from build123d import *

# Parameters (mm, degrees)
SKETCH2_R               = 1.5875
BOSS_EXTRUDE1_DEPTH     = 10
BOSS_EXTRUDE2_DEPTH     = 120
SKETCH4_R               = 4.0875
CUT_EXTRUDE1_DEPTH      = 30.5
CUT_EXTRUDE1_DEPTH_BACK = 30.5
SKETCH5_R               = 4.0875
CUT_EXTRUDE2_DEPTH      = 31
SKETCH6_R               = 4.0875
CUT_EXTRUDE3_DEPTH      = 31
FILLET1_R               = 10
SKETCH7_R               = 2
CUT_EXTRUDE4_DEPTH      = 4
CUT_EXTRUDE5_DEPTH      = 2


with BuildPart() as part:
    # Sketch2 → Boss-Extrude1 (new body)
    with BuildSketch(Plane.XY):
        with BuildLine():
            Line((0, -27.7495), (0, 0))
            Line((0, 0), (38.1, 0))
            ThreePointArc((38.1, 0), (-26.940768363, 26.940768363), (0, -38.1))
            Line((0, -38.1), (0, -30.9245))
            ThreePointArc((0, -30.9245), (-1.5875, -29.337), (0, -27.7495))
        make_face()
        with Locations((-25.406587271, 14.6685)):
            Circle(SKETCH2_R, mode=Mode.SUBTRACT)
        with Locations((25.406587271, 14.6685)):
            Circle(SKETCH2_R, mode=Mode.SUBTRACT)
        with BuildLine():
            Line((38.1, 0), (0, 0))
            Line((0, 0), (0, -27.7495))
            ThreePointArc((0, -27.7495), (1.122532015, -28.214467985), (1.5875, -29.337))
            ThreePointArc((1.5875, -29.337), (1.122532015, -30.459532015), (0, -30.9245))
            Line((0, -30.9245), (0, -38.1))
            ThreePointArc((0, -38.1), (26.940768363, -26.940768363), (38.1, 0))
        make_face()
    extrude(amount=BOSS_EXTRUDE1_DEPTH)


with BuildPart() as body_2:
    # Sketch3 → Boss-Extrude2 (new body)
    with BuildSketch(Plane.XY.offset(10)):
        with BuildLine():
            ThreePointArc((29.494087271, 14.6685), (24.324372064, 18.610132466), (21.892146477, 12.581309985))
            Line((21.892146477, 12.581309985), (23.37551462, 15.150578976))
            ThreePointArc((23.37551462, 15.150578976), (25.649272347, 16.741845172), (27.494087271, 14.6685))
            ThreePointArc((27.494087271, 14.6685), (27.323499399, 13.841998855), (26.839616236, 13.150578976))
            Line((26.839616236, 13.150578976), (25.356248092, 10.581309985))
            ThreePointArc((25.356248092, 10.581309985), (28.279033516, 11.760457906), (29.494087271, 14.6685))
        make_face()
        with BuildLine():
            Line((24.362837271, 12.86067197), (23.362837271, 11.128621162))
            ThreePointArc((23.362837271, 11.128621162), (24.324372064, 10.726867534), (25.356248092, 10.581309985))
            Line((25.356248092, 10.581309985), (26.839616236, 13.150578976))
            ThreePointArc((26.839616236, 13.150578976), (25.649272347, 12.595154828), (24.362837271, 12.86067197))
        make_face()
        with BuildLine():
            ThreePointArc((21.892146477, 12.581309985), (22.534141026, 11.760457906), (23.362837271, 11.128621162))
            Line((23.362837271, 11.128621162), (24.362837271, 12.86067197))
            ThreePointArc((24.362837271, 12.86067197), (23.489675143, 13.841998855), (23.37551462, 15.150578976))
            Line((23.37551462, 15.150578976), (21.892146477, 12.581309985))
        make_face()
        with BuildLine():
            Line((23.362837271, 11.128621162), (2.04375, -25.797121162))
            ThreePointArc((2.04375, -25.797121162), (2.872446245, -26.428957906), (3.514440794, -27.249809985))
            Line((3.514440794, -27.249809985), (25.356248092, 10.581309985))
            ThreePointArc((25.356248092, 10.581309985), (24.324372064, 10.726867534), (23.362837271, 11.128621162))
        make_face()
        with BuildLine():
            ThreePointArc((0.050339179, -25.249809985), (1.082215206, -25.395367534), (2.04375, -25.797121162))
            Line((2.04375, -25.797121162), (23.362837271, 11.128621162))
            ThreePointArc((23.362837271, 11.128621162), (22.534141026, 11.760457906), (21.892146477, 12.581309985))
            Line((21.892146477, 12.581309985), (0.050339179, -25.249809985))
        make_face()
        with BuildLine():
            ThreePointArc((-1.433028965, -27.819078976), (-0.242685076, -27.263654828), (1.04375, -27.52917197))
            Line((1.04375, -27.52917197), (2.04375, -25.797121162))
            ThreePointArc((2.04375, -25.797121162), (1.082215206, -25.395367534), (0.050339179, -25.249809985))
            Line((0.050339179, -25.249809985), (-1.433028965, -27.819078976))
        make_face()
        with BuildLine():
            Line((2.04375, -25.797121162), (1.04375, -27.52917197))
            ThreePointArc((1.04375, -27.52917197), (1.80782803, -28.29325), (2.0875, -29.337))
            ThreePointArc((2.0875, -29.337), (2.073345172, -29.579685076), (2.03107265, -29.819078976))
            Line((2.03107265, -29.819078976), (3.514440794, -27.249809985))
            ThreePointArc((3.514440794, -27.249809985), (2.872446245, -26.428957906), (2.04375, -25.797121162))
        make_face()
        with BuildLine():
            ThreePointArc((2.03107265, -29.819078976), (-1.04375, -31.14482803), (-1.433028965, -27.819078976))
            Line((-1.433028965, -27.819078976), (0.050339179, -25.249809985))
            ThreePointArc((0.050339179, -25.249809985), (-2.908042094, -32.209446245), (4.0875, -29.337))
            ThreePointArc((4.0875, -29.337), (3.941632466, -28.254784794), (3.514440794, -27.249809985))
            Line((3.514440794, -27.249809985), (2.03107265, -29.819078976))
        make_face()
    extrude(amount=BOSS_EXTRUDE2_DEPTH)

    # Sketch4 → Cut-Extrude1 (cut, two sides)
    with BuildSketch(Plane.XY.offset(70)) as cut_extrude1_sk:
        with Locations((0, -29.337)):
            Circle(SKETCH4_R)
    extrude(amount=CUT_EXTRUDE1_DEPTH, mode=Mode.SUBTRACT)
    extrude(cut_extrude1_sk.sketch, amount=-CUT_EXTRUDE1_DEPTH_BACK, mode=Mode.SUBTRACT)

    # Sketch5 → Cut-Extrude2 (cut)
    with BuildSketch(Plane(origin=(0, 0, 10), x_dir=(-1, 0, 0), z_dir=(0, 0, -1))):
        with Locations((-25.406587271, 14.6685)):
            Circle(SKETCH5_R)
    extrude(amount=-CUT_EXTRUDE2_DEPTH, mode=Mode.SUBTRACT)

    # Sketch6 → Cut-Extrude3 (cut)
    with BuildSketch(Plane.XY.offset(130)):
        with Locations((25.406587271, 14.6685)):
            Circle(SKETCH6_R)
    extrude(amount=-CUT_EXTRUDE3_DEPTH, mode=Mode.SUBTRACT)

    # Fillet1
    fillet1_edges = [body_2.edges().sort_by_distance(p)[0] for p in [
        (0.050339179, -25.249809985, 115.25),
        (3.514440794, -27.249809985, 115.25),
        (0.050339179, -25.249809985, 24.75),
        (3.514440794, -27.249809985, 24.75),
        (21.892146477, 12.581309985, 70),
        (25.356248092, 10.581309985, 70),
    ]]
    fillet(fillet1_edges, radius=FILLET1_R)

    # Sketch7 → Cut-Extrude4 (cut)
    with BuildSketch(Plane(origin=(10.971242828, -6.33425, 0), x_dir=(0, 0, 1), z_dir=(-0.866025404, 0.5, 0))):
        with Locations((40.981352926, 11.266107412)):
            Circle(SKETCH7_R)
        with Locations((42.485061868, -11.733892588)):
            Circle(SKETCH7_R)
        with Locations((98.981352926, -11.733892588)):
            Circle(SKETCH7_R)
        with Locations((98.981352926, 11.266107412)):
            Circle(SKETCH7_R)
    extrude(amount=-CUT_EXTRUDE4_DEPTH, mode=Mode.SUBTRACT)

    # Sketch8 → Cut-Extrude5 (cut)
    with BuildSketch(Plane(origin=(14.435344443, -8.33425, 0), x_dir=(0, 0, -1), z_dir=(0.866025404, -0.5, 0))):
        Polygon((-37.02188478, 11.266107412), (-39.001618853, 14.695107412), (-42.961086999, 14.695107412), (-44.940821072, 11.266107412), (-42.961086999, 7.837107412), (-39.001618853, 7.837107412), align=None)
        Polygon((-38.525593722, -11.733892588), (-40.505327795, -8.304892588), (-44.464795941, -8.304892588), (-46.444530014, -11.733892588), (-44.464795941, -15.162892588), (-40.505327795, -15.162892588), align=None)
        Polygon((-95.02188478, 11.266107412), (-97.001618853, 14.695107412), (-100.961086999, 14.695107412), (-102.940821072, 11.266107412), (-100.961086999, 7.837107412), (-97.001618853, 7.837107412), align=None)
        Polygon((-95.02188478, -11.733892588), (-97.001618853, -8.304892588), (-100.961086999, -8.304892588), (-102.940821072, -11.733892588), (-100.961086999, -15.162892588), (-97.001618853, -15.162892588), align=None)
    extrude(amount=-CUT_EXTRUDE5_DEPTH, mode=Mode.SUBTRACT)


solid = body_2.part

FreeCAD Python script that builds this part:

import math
import FreeCAD as App
import Part
import Sketcher
from FreeCAD import Vector
Q = App.Units.Quantity


def edges_at(feature, points):
    """Names of the edges that pass closest to the given points."""
    edges = feature.Shape.Edges
    near = lambda p: min(range(len(edges)), key=lambda i: edges[i].distToShape(Part.Vertex(*p))[0])
    return sorted({f"Edge{near(p) + 1}" for p in points})

doc = App.newDocument("Part")
body = doc.addObject("PartDesign::Body", "Body")

sketch1 = body.newObject("Sketcher::SketchObject", "Sketch")
sketch1.AttachmentSupport = (doc.getObject("XY_Plane"), [""])
sketch1.MapMode = "FlatFace"
sketch1.addGeometry([
    Part.ArcOfCircle(Part.Circle(Vector(0, 0, 0), Vector(0, 0, 1), 38.1), math.radians(0), math.radians(270)),
    Part.ArcOfCircle(Part.Circle(Vector(0, 0, 0), Vector(0, 0, 1), 38.1), math.radians(-90), math.radians(0)),
    Part.ArcOfCircle(Part.Circle(Vector(0, -29.337, 0), Vector(0, 0, 1), 1.5875), math.radians(90), math.radians(270)),
    Part.ArcOfCircle(Part.Circle(Vector(0, -29.337, 0), Vector(0, 0, 1), 1.5875), math.radians(0), math.radians(90)),
    Part.ArcOfCircle(Part.Circle(Vector(0, -29.337, 0), Vector(0, 0, 1), 1.5875), math.radians(-90), math.radians(0)),
    Part.Circle(Vector(-25.406587, 14.6685, 0), Vector(0, 0, 1), 1.5875),
    Part.Circle(Vector(25.406587, 14.6685, 0), Vector(0, 0, 1), 1.5875),
], False)
sketch1.addConstraint([
    Sketcher.Constraint("Tangent", 0, 1, 1, 2),
    Sketcher.Constraint("Coincident", 1, 1, 0, 2),
    Sketcher.Constraint("Tangent", 2, 1, 3, 2),
    Sketcher.Constraint("Tangent", 3, 1, 4, 2),
    Sketcher.Constraint("Tangent", 4, 1, 2, 2),
    Sketcher.Constraint("Coincident", 0, 3, -1, 1),
    Sketcher.Constraint("Equal", 4, 5),
    Sketcher.Constraint("Equal", 5, 6),
    Sketcher.Constraint("Symmetric", 5, 3, 6, 3, -2),
    Sketcher.Constraint("PointOnObject", 2, 3, -2),
    Sketcher.Constraint("PointOnObject", 0, 1, -1),
    Sketcher.Constraint("PointOnObject", 1, 1, -2),
    Sketcher.Constraint("PointOnObject", 2, 1, -2),
    Sketcher.Constraint("PointOnObject", 4, 1, -2),
    Sketcher.Constraint("Horizontal", 4, 3, 3, 1),
    Sketcher.Constraint("Radius", 0, Q("38.1 mm")),
    Sketcher.Constraint("Diameter", 5, Q("3.175 mm")),
    Sketcher.Constraint("DistanceY", 2, 3, -1, 1, Q("29.337 mm")),
    Sketcher.Constraint("DistanceY", -1, 1, 5, 3, Q("14.6685 mm")),
    Sketcher.Constraint("DistanceX", 5, 3, -1, 1, Q("25.406587 mm")),
])
pad1 = body.newObject("PartDesign::Pad", "Pad")
pad1.Profile = sketch1
pad1.Length = 10
body2 = doc.addObject("PartDesign::Body", "Body001")

sketch2 = body2.newObject("Sketcher::SketchObject", "Sketch001")
sketch2.AttachmentSupport = (doc.getObject("XY_Plane001"), [""])
sketch2.MapMode = "FlatFace"
sketch2.AttachmentOffset = App.Placement(Vector(0, 0, 10), App.Rotation())
sketch2.addGeometry([
    Part.ArcOfCircle(Part.Circle(Vector(25.406587, 14.6685, 0), Vector(0, 0, 1), 4.0875), math.radians(0), math.radians(210.705638)),
    Part.LineSegment(Vector(21.892146, 12.58131, 0), Vector(0.050339, -25.24981, 0)),
    Part.ArcOfCircle(Part.Circle(Vector(0, -29.337, 0), Vector(0, 0, 1), 4.0875), math.radians(89.294362), math.radians(360)),
    Part.ArcOfCircle(Part.Circle(Vector(0, -29.337, 0), Vector(0, 0, 1), 4.0875), math.radians(0), math.radians(30.705638)),
    Part.LineSegment(Vector(3.514441, -27.24981, 0), Vector(25.356248, 10.58131, 0)),
    Part.ArcOfCircle(Part.Circle(Vector(25.406587, 14.6685, 0), Vector(0, 0, 1), 4.0875), math.radians(-90.705638), math.radians(0)),
    Part.ArcOfCircle(Part.Circle(Vector(0, -29.337, 0), Vector(0, 0, 1), 2.0875), math.radians(60), math.radians(133.352186)),
    Part.ArcOfCircle(Part.Circle(Vector(0, -29.337, 0), Vector(0, 0, 1), 2.0875), math.radians(0), math.radians(60)),
    Part.ArcOfCircle(Part.Circle(Vector(0, -29.337, 0), Vector(0, 0, 1), 2.0875), math.radians(-13.352186), math.radians(0)),
    Part.ArcOfCircle(Part.Circle(Vector(0, -29.337, 0), Vector(0, 0, 1), 2.0875), math.radians(133.352186), math.radians(346.647814)),
    Part.ArcOfCircle(Part.Circle(Vector(25.406587, 14.6685, 0), Vector(0, 0, 1), 2.0875), math.radians(0), math.radians(166.647814)),
    Part.ArcOfCircle(Part.Circle(Vector(25.406587, 14.6685, 0), Vector(0, 0, 1), 2.0875), math.radians(-46.647814), math.radians(0)),
    Part.ArcOfCircle(Part.Circle(Vector(25.406587, 14.6685, 0), Vector(0, 0, 1), 2.0875), math.radians(-120), math.radians(-46.647814)),
    Part.ArcOfCircle(Part.Circle(Vector(25.406587, 14.6685, 0), Vector(0, 0, 1), 2.0875), math.radians(166.647814), math.radians(240)),
], False)
sketch2.addConstraint([
    Sketcher.Constraint("Coincident", 0, 2, 1, 1),
    Sketcher.Constraint("Coincident", 1, 2, 2, 1),
    Sketcher.Constraint("Tangent", 2, 2, 3, 1),
    Sketcher.Constraint("Coincident", 3, 2, 4, 1),
    Sketcher.Constraint("Coincident", 4, 2, 5, 1),
    Sketcher.Constraint("Tangent", 5, 2, 0, 1),
    Sketcher.Constraint("Tangent", 6, 1, 7, 2),
    Sketcher.Constraint("Tangent", 7, 1, 8, 2),
    Sketcher.Constraint("Tangent", 8, 1, 9, 2),
    Sketcher.Constraint("Tangent", 9, 1, 6, 2),
    Sketcher.Constraint("Tangent", 10, 1, 11, 2),
    Sketcher.Constraint("Tangent", 11, 1, 12, 2),
    Sketcher.Constraint("Tangent", 12, 1, 13, 2),
    Sketcher.Constraint("Tangent", 13, 1, 10, 2),
    Sketcher.Constraint("Coincident", 6, 3, 2, 3),
    Sketcher.Constraint("Coincident", 10, 3, 0, 3),
    Sketcher.Constraint("Equal", 0, 2),
    Sketcher.Constraint("Equal", 2, 3),
    Sketcher.Constraint("Equal", 3, 5),
    Sketcher.Constraint("Equal", 6, 7),
    Sketcher.Constraint("Equal", 9, 10),
    Sketcher.Constraint("Equal", 10, 11),
    Sketcher.Constraint("PointOnObject", 2, 3, -2),
    Sketcher.Constraint("Parallel", 1, 4),
    Sketcher.Constraint("Horizontal", 9, 3, 2, 2),
    Sketcher.Constraint("Horizontal", 13, 3, 5, 2),
    Sketcher.Constraint("Horizontal", 2, 2, 7, 1),
    Sketcher.Constraint("Horizontal", 5, 2, 10, 1),
    Sketcher.Constraint("Equal", 1, 4),
    Sketcher.Constraint("Angle", 1, Q("-120 deg")),
    Sketcher.Constraint("DistanceY", 3, 2, 1, 2, Q("2 mm")),
    Sketcher.Constraint("DistanceX", 7, 1, 2, 2, Q("2 mm")),
    Sketcher.Constraint("Radius", 0, Q("4.0875 mm")),
    Sketcher.Constraint("DistanceY", 2, 3, -1, 1, Q("29.337 mm")),
    Sketcher.Constraint("DistanceY", -1, 1, 0, 3, Q("14.6685 mm")),
    Sketcher.Constraint("DistanceX", 1, 2, 3, 2, Q("3.464102 mm")),
    Sketcher.Constraint("DistanceX", -1, 1, 6, 1, Q("1.04375 mm")),
    Sketcher.Constraint("DistanceY", 8, 1, -1, 1, Q("29.819079 mm")),
    Sketcher.Constraint("DistanceX", 9, 1, -1, 1, Q("1.433029 mm")),
    Sketcher.Constraint("DistanceY", -1, 1, 11, 1, Q("13.150579 mm")),
    Sketcher.Constraint("DistanceY", -1, 1, 12, 1, Q("12.860672 mm")),
    Sketcher.Constraint("DistanceY", -1, 1, 13, 1, Q("15.150579 mm")),
])
pad2 = body2.newObject("PartDesign::Pad", "Pad001")
pad2.Profile = sketch2
pad2.Length = 120

sketch3 = body2.newObject("Sketcher::SketchObject", "Sketch002")
sketch3.AttachmentSupport = (doc.getObject("XY_Plane001"), [""])
sketch3.MapMode = "FlatFace"
sketch3.AttachmentOffset = App.Placement(Vector(0, 0, 70), App.Rotation())
sketch3.addGeometry(Part.Circle(Vector(0, -29.337, 0), Vector(0, 0, 1), 4.0875), False)
sketch3.addConstraint([
    Sketcher.Constraint("PointOnObject", 0, 3, -2),
    Sketcher.Constraint("Diameter", 0, Q("8.175 mm")),
    Sketcher.Constraint("DistanceY", 0, 3, -1, 1, Q("29.337 mm")),
])
pocket1 = body2.newObject("PartDesign::Pocket", "Pocket")
pocket1.Profile = sketch3
pocket1.Type = "TwoLengths"
pocket1.Length = 30.5
pocket1.Length2 = 30.5
pocket1.Reversed = True

sketch4 = body2.newObject("Sketcher::SketchObject", "Sketch003")
sketch4.AttachmentSupport = (doc.getObject("XY_Plane001"), [""])
sketch4.MapMode = "FlatFace"
sketch4.AttachmentOffset = App.Placement(Vector(0, 0, 10), App.Rotation())
sketch4.addGeometry(Part.Circle(Vector(25.406587, 14.6685, 0), Vector(0, 0, 1), 4.0875), False)
sketch4.addConstraint([
    Sketcher.Constraint("Diameter", 0, Q("8.175 mm")),
    Sketcher.Constraint("DistanceY", -1, 1, 0, 3, Q("14.6685 mm")),
    Sketcher.Constraint("DistanceX", -1, 1, 0, 3, Q("25.406587 mm")),
])
pocket2 = body2.newObject("PartDesign::Pocket", "Pocket001")
pocket2.Profile = sketch4
pocket2.Length = 31
pocket2.Reversed = True

sketch5 = body2.newObject("Sketcher::SketchObject", "Sketch004")
sketch5.AttachmentSupport = (doc.getObject("XY_Plane001"), [""])
sketch5.MapMode = "FlatFace"
sketch5.AttachmentOffset = App.Placement(Vector(0, 0, 130), App.Rotation())
sketch5.addGeometry(Part.Circle(Vector(25.406587, 14.6685, 0), Vector(0, 0, 1), 4.0875), False)
sketch5.addConstraint([
    Sketcher.Constraint("Diameter", 0, Q("8.175 mm")),
    Sketcher.Constraint("DistanceY", -1, 1, 0, 3, Q("14.6685 mm")),
    Sketcher.Constraint("DistanceX", -1, 1, 0, 3, Q("25.406587 mm")),
])
pocket3 = body2.newObject("PartDesign::Pocket", "Pocket002")
pocket3.Profile = sketch5
pocket3.Length = 31
doc.recompute()

fillet = body2.newObject("PartDesign::Fillet", "Fillet")
fillet.Base = (pocket3, edges_at(pocket3, [
    (0.05, -25.25, 115.25),
    (3.514, -27.25, 115.25),
    (0.05, -25.25, 24.75),
    (3.514, -27.25, 24.75),
    (21.892, 12.581, 70),
    (25.356, 10.581, 70),
]))
fillet.Radius = 10

sketch6 = body2.newObject("Sketcher::SketchObject", "Sketch005")
sketch6.Placement = App.Placement(Vector(10.971243, -6.33425, 0), App.Rotation(Vector(0, 0, 1), Vector(0.5, 0.866025404, 0), Vector(-0.866025404, 0.5, 0), "ZXY"))
sketch6.addGeometry([
    Part.Circle(Vector(40.981353, 11.266107, 0), Vector(0, 0, 1), 2),
    Part.Circle(Vector(42.485062, -11.733893, 0), Vector(0, 0, 1), 2),
    Part.Circle(Vector(98.981353, -11.733893, 0), Vector(0, 0, 1), 2),
    Part.Circle(Vector(98.981353, 11.266107, 0), Vector(0, 0, 1), 2),
], False)
sketch6.addConstraint([
    Sketcher.Constraint("Equal", 0, 1),
    Sketcher.Constraint("Equal", 1, 2),
    Sketcher.Constraint("Equal", 2, 3),
    Sketcher.Constraint("Horizontal", 1, 3, 2, 3),
    Sketcher.Constraint("Horizontal", 0, 3, 3, 3),
    Sketcher.Constraint("Vertical", 2, 3, 3, 3),
    Sketcher.Constraint("Diameter", 0, Q("4 mm")),
    Sketcher.Constraint("DistanceY", 1, 3, 0, 3, Q("23 mm")),
    Sketcher.Constraint("DistanceX", 0, 3, 2, 3, Q("58 mm")),
    Sketcher.Constraint("DistanceX", -1, 1, 1, 3, Q("42.485062 mm")),
    Sketcher.Constraint("DistanceX", 0, 3, 1, 3, Q("1.503709 mm")),
    Sketcher.Constraint("DistanceY", -1, 1, 0, 3, Q("11.266107 mm")),
])
pocket4 = body2.newObject("PartDesign::Pocket", "Pocket003")
pocket4.Profile = sketch6
pocket4.Length = 4

sketch7 = body2.newObject("Sketcher::SketchObject", "Sketch006")
sketch7.Placement = App.Placement(Vector(14.435344, -8.33425, 0), App.Rotation(Vector(0, 0, -1), Vector(0.5, 0.866025404, 0), Vector(0.866025404, -0.5, 0), "ZXY"))
sketch7.addGeometry([
    Part.LineSegment(Vector(-37.021885, 11.266107, 0), Vector(-39.001619, 14.695107, 0)),
    Part.LineSegment(Vector(-39.001619, 14.695107, 0), Vector(-42.961087, 14.695107, 0)),
    Part.LineSegment(Vector(-42.961087, 14.695107, 0), Vector(-44.940821, 11.266107, 0)),
    Part.LineSegment(Vector(-44.940821, 11.266107, 0), Vector(-42.961087, 7.837107, 0)),
    Part.LineSegment(Vector(-42.961087, 7.837107, 0), Vector(-39.001619, 7.837107, 0)),
    Part.LineSegment(Vector(-39.001619, 7.837107, 0), Vector(-37.021885, 11.266107, 0)),
    Part.LineSegment(Vector(-38.525594, -11.733893, 0), Vector(-40.505328, -8.304893, 0)),
    Part.LineSegment(Vector(-40.505328, -8.304893, 0), Vector(-44.464796, -8.304893, 0)),
    Part.LineSegment(Vector(-44.464796, -8.304893, 0), Vector(-46.44453, -11.733893, 0)),
    Part.LineSegment(Vector(-46.44453, -11.733893, 0), Vector(-44.464796, -15.162893, 0)),
    Part.LineSegment(Vector(-44.464796, -15.162893, 0), Vector(-40.505328, -15.162893, 0)),
    Part.LineSegment(Vector(-40.505328, -15.162893, 0), Vector(-38.525594, -11.733893, 0)),
    Part.LineSegment(Vector(-95.021885, 11.266107, 0), Vector(-97.001619, 14.695107, 0)),
    Part.LineSegment(Vector(-97.001619, 14.695107, 0), Vector(-100.961087, 14.695107, 0)),
    Part.LineSegment(Vector(-100.961087, 14.695107, 0), Vector(-102.940821, 11.266107, 0)),
    Part.LineSegment(Vector(-102.940821, 11.266107, 0), Vector(-100.961087, 7.837107, 0)),
    Part.LineSegment(Vector(-100.961087, 7.837107, 0), Vector(-97.001619, 7.837107, 0)),
    Part.LineSegment(Vector(-97.001619, 7.837107, 0), Vector(-95.021885, 11.266107, 0)),
    Part.LineSegment(Vector(-95.021885, -11.733893, 0), Vector(-97.001619, -8.304893, 0)),
    Part.LineSegment(Vector(-97.001619, -8.304893, 0), Vector(-100.961087, -8.304893, 0)),
    Part.LineSegment(Vector(-100.961087, -8.304893, 0), Vector(-102.940821, -11.733893, 0)),
    Part.LineSegment(Vector(-102.940821, -11.733893, 0), Vector(-100.961087, -15.162893, 0)),
    Part.LineSegment(Vector(-100.961087, -15.162893, 0), Vector(-97.001619, -15.162893, 0)),
    Part.LineSegment(Vector(-97.001619, -15.162893, 0), Vector(-95.021885, -11.733893, 0)),
], False)
sketch7.addConstraint([
    Sketcher.Constraint("Coincident", 0, 2, 1, 1),
    Sketcher.Constraint("Coincident", 1, 2, 2, 1),
    Sketcher.Constraint("Coincident", 2, 2, 3, 1),
    Sketcher.Constraint("Coincident", 3, 2, 4, 1),
    Sketcher.Constraint("Coincident", 4, 2, 5, 1),
    Sketcher.Constraint("Coincident", 5, 2, 0, 1),
    Sketcher.Constraint("Coincident", 6, 2, 7, 1),
    Sketcher.Constraint("Coincident", 7, 2, 8, 1),
    Sketcher.Constraint("Coincident", 8, 2, 9, 1),
    Sketcher.Constraint("Coincident", 9, 2, 10, 1),
    Sketcher.Constraint("Coincident", 10, 2, 11, 1),
    Sketcher.Constraint("Coincident", 11, 2, 6, 1),
    Sketcher.Constraint("Coincident", 12, 2, 13, 1),
    Sketcher.Constraint("Coincident", 13, 2, 14, 1),
    Sketcher.Constraint("Coincident", 14, 2, 15, 1),
    Sketcher.Constraint("Coincident", 15, 2, 16, 1),
    Sketcher.Constraint("Coincident", 16, 2, 17, 1),
    Sketcher.Constraint("Coincident", 17, 2, 12, 1),
    Sketcher.Constraint("Coincident", 18, 2, 19, 1),
    Sketcher.Constraint("Coincident", 19, 2, 20, 1),
    Sketcher.Constraint("Coincident", 20, 2, 21, 1),
    Sketcher.Constraint("Coincident", 21, 2, 22, 1),
    Sketcher.Constraint("Coincident", 22, 2, 23, 1),
    Sketcher.Constraint("Coincident", 23, 2, 18, 1),
    Sketcher.Constraint("Horizontal", 1),
    Sketcher.Constraint("Horizontal", 4),
    Sketcher.Constraint("Horizontal", 7),
    Sketcher.Constraint("Horizontal", 10),
    Sketcher.Constraint("Horizontal", 13),
    Sketcher.Constraint("Horizontal", 16),
    Sketcher.Constraint("Horizontal", 19),
    Sketcher.Constraint("Horizontal", 22),
    Sketcher.Constraint("Parallel", 0, 3),
    Sketcher.Constraint("Parallel", 2, 5),
    Sketcher.Constraint("Parallel", 3, 6),
    Sketcher.Constraint("Parallel", 5, 8),
    Sketcher.Constraint("Parallel", 6, 9),
    Sketcher.Constraint("Parallel", 8, 11),
    Sketcher.Constraint("Parallel", 9, 12),
    Sketcher.Constraint("Parallel", 11, 14),
    Sketcher.Constraint("Parallel", 12, 15),
    Sketcher.Constraint("Parallel", 14, 17),
    Sketcher.Constraint("Parallel", 15, 18),
    Sketcher.Constraint("Parallel", 17, 20),
    Sketcher.Constraint("Parallel", 18, 21),
    Sketcher.Constraint("Parallel", 20, 23),
    Sketcher.Constraint("Horizontal", 2, 2, 5, 2),
    Sketcher.Constraint("Horizontal", 8, 2, 11, 2),
    Sketcher.Constraint("Horizontal", 1, 2, 12, 2),
    Sketcher.Constraint("Horizontal", 5, 2, 14, 2),
    Sketcher.Constraint("Horizontal", 4, 2, 15, 2),
    Sketcher.Constraint("Horizontal", 14, 2, 17, 2),
    Sketcher.Constraint("Horizontal", 7, 2, 18, 2),
    Sketcher.Constraint("Horizontal", 11, 2, 20, 2),
    Sketcher.Constraint("Horizontal", 10, 2, 21, 2),
    Sketcher.Constraint("Horizontal", 20, 2, 23, 2),
    Sketcher.Constraint("Vertical", 1, 2, 3, 2),
    Sketcher.Constraint("Vertical", 0, 2, 4, 2),
    Sketcher.Constraint("Vertical", 7, 2, 9, 2),
    Sketcher.Constraint("Vertical", 16, 2, 18, 2),
    Sketcher.Constraint("Vertical", 15, 2, 19, 2),
    Sketcher.Constraint("Vertical", 14, 2, 20, 2),
    Sketcher.Constraint("Equal", 4, 7),
    Sketcher.Constraint("Equal", 10, 13),
    Sketcher.Constraint("Angle", 0, Q("120 deg")),
    Sketcher.Constraint("DistanceY", 6, 2, 0, 2, Q("23 mm")),
    Sketcher.Constraint("DistanceX", 13, 2, 1, 2, Q("58 mm")),
    Sketcher.Constraint("DistanceY", 2, 2, 1, 2, Q("3.429 mm")),
    Sketcher.Constraint("DistanceX", 1, 2, 1, 1, Q("3.959468 mm")),
    Sketcher.Constraint("DistanceX", 0, 2, -1, 1, Q("39.001619 mm")),
    Sketcher.Constraint("DistanceX", 8, 2, -1, 1, Q("46.44453 mm")),
    Sketcher.Constraint("DistanceY", -1, 1, 0, 2, Q("14.695107 mm")),
])
pocket5 = body2.newObject("PartDesign::Pocket", "Pocket004")
pocket5.Profile = sketch7
pocket5.Length = 2
body.Visibility = False

doc.recompute()
